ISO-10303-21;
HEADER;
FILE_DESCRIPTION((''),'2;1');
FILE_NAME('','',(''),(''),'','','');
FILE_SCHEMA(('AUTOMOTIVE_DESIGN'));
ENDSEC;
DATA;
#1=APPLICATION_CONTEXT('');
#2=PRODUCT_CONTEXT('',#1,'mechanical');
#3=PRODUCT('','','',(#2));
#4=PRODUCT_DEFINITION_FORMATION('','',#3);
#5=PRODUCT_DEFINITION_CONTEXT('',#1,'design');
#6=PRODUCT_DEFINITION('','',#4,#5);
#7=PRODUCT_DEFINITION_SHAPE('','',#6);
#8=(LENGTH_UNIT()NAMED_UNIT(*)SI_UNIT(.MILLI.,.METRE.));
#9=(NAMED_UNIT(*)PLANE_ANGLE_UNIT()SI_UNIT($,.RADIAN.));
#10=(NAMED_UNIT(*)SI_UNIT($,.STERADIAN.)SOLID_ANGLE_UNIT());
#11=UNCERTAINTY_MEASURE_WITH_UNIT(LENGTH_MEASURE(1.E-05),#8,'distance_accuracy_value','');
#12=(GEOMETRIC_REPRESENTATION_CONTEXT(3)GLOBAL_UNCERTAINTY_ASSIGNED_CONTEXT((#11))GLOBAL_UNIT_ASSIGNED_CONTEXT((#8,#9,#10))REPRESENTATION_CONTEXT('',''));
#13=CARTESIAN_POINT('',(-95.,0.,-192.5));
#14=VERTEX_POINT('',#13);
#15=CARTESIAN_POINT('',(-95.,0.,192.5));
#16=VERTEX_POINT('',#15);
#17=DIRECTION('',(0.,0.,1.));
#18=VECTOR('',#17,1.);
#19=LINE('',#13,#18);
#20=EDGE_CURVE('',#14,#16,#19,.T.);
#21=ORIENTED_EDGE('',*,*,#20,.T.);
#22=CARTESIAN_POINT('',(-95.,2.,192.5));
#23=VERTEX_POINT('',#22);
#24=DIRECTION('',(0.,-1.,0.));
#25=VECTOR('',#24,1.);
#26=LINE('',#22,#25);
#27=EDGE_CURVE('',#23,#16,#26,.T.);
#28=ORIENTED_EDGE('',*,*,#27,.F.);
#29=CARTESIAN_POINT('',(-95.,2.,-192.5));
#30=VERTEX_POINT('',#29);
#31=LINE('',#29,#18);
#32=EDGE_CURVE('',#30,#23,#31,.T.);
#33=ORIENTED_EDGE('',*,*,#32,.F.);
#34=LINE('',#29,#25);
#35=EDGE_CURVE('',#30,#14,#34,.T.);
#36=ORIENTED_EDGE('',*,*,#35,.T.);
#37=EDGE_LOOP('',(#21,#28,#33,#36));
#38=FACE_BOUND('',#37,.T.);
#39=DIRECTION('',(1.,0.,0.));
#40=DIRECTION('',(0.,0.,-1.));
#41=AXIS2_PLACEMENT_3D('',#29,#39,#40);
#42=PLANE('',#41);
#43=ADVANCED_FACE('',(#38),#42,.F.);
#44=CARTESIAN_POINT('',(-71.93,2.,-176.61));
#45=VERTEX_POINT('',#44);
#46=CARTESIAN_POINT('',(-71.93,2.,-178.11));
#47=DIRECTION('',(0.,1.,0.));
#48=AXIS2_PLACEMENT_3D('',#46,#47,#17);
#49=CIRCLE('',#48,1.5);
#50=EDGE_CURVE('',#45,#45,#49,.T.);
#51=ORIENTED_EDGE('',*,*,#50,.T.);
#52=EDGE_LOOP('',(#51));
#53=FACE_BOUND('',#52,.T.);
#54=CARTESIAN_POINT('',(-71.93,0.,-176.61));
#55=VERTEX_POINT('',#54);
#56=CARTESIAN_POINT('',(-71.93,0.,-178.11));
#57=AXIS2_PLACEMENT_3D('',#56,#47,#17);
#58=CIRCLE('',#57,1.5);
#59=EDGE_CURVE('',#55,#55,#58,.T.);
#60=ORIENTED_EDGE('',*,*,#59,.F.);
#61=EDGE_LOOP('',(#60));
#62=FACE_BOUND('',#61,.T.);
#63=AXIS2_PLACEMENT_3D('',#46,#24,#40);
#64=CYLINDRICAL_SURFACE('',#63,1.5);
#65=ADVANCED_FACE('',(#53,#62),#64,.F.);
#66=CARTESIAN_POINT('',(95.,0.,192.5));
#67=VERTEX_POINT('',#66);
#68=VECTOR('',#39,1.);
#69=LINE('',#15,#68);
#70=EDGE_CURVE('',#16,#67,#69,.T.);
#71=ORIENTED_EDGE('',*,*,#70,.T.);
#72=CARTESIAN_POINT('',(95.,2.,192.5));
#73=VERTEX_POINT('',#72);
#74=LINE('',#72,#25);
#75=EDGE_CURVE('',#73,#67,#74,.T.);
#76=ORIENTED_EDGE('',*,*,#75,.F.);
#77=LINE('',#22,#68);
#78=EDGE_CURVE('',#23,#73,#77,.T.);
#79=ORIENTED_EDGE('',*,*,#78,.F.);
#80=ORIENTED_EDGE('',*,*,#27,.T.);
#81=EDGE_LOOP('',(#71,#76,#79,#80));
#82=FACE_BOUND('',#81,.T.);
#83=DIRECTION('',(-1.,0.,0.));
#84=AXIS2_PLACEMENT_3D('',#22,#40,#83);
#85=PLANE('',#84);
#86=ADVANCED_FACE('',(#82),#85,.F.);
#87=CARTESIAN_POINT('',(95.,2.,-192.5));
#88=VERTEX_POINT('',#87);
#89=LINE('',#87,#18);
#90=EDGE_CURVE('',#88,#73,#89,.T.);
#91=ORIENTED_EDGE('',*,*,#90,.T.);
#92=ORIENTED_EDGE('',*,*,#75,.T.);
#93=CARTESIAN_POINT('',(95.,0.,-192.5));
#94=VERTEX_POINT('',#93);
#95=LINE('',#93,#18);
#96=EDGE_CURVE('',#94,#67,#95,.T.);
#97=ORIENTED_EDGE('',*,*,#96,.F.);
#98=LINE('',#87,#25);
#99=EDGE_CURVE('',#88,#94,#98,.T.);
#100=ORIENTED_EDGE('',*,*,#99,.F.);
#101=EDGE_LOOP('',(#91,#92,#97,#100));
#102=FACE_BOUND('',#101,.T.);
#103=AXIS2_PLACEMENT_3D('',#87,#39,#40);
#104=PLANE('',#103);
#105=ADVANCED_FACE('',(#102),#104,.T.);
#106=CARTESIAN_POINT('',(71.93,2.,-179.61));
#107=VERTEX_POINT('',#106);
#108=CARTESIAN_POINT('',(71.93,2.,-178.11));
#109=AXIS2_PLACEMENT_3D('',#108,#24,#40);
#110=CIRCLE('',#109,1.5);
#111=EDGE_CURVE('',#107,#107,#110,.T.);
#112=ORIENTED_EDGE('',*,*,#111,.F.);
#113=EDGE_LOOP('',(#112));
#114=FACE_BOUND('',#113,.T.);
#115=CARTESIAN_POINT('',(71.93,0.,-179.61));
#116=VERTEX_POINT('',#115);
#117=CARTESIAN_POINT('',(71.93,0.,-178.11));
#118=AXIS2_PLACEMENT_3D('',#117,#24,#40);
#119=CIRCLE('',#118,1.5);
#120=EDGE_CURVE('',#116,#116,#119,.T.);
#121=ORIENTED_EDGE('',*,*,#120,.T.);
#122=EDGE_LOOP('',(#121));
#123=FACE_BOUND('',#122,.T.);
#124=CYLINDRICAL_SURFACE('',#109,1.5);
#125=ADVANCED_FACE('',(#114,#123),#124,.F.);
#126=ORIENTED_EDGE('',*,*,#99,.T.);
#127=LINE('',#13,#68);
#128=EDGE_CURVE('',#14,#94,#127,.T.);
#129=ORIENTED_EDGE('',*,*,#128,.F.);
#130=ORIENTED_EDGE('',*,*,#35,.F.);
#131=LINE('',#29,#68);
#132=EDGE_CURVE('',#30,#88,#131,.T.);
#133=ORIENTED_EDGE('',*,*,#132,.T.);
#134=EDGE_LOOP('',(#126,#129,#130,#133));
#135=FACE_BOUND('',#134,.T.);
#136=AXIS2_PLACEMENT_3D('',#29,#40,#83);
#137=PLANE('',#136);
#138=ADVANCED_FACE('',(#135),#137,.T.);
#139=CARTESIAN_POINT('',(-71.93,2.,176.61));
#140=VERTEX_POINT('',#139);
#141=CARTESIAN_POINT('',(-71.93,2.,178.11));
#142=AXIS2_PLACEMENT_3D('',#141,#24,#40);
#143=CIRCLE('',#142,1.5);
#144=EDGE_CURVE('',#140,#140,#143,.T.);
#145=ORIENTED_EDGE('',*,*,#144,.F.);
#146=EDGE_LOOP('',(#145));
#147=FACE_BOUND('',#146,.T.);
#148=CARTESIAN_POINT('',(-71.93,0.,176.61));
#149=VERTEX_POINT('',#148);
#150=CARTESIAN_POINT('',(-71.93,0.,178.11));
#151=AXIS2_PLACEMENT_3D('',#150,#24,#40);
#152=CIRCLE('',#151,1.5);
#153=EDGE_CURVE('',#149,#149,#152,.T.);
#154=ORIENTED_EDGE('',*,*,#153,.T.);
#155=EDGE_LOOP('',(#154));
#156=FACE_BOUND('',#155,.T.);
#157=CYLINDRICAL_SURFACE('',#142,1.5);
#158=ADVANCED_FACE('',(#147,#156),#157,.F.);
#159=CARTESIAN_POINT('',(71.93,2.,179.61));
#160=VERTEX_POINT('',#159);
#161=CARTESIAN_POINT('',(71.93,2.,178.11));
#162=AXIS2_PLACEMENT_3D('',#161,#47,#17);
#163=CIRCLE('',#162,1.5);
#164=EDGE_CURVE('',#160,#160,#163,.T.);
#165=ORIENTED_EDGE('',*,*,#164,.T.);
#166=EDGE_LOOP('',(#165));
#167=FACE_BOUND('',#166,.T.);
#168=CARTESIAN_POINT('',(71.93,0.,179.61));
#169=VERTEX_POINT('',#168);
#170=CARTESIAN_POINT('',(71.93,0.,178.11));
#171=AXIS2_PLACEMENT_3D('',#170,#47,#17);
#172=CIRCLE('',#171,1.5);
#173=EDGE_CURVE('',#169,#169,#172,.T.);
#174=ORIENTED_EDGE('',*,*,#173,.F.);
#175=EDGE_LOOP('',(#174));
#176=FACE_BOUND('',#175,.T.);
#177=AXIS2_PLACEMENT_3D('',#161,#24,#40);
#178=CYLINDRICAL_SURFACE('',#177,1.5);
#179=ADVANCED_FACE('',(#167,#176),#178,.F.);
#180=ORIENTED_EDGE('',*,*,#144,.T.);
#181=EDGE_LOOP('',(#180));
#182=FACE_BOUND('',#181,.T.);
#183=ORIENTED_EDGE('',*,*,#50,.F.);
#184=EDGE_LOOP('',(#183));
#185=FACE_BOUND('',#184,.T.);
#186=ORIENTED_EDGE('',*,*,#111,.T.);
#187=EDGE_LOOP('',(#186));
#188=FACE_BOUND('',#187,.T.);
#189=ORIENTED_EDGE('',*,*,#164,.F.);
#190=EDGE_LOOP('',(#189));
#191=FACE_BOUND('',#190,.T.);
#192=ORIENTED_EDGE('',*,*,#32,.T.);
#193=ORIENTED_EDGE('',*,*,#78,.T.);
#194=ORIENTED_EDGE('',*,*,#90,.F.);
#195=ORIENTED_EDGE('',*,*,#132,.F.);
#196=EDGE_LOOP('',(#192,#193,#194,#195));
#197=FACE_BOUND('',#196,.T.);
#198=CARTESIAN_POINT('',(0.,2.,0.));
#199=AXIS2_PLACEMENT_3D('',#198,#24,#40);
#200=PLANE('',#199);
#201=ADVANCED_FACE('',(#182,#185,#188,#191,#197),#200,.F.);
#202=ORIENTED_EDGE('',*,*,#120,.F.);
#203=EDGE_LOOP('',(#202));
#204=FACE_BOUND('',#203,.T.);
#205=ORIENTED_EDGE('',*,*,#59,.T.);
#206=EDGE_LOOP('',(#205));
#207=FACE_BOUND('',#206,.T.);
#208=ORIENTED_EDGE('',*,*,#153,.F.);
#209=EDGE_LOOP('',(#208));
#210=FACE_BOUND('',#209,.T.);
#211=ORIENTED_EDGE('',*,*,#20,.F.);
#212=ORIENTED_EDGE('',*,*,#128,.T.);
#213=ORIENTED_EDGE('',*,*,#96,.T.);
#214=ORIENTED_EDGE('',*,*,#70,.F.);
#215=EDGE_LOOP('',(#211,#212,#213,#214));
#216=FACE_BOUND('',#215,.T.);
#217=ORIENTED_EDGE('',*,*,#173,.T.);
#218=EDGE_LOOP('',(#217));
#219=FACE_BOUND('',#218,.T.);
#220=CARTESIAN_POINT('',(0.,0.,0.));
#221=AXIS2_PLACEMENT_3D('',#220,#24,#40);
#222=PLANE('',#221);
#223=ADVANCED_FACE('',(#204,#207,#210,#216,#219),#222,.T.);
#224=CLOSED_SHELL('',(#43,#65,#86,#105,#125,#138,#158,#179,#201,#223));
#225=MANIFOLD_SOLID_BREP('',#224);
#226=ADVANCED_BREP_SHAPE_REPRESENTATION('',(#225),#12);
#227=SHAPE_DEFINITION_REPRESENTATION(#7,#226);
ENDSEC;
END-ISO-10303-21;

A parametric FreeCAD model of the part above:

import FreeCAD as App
import Part
import Sketcher


def add_polygon(sketch, points):
    """Adds a closed chain of lines whose ends are joined by coincident constraints."""
    first, n = sketch.GeometryCount, len(points)
    for a, b in zip(points, points[1:] + points[:1]):
        sketch.addGeometry(Part.LineSegment(App.Vector(*a, 0), App.Vector(*b, 0)), False)
    for i in range(n):
        sketch.addConstraint(Sketcher.Constraint("Coincident", first + i, 2, first + (i + 1) % n, 1))

doc = App.newDocument("Part")
body = doc.addObject("PartDesign::Body", "Body")

# Sketch on XZ plane
sketch1 = body.newObject("Sketcher::SketchObject", "Sketch")
sketch1.AttachmentSupport = (doc.getObject("XZ_Plane"), [""])
sketch1.MapMode = "FlatFace"
add_polygon(sketch1, [(-95, -192.5), (-95, 192.5), (95, 192.5), (95, -192.5)])  # lines 0-3
sketch1.addGeometry(Part.Circle(App.Vector(-71.9, 178.1, 0), App.Vector(0, 0, 1), 1.5), False)  # 4
sketch1.addGeometry(Part.Circle(App.Vector(71.9, 178.1, 0), App.Vector(0, 0, 1), 1.5), False)  # 5
sketch1.addGeometry(Part.Circle(App.Vector(-71.9, -178.1, 0), App.Vector(0, 0, 1), 1.5), False)  # 6
sketch1.addGeometry(Part.Circle(App.Vector(71.9, -178.1, 0), App.Vector(0, 0, 1), 1.5), False)  # 7
sketch1.addConstraint([
    Sketcher.Constraint("Vertical", 0),
    Sketcher.Constraint("Horizontal", 1),
    Sketcher.Constraint("Vertical", 2),
    Sketcher.Constraint("Horizontal", 3),
    Sketcher.Constraint("Equal", 4, 5),
    Sketcher.Constraint("Equal", 5, 6),
    Sketcher.Constraint("Equal", 6, 7),
    Sketcher.Constraint("Symmetric", 5, 3, 6, 3, -1, 1),
    Sketcher.Constraint("Symmetric", 4, 3, 7, 3, -1, 1),
    Sketcher.Constraint("Symmetric", 0, 2, 2, 2, -1, 1),
    Sketcher.Constraint("Symmetric", 4, 3, 5, 3, -2),
    Sketcher.Constraint("Diameter", 4, 3.0),
    Sketcher.Constraint("DistanceX", 1, 1, 1, 2, 190.0),
    Sketcher.Constraint("DistanceY", 0, 1, 0, 2, 385.0),
    Sketcher.Constraint("DistanceX", 4, 3, -1, 1, 71.93),
    Sketcher.Constraint("DistanceY", -1, 1, 4, 3, 178.11),
])
pad1 = body.newObject("PartDesign::Pad", "Pad")
pad1.Profile = sketch1
pad1.Length = 2
pad1.Reversed = True

doc.recompute()
